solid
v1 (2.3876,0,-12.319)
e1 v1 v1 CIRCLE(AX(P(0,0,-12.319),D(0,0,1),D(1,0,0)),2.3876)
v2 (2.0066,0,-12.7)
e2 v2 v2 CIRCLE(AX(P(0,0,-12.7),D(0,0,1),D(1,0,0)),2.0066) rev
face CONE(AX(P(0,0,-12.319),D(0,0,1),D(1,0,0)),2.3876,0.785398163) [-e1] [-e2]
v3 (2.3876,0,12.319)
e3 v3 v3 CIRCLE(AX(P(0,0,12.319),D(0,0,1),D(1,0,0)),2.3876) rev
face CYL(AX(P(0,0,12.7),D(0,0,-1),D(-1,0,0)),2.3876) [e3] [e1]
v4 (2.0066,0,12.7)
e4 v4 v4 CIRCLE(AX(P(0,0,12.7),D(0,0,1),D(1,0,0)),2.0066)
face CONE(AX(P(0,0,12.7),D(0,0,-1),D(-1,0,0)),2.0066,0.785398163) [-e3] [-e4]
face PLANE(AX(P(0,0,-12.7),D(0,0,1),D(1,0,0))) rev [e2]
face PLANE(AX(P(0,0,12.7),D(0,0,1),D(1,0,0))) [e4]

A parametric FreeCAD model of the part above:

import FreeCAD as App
import Part
import Sketcher

V = App.Vector
Q = App.Units.Quantity


def edges_at(feature, points):
    """Names of the edges that pass closest to the given points."""
    edges = feature.Shape.Edges
    near = lambda p: min(range(len(edges)), key=lambda i: edges[i].distToShape(Part.Vertex(*p))[0])
    return sorted({f"Edge{near(p) + 1}" for p in points})

doc = App.newDocument("Part")
body = doc.addObject("PartDesign::Body", "Body")

# Sketch on XY plane
sketch1 = doc.addObject("Sketcher::SketchObject", "Sketch")
body.addObject(sketch1)
sketch1.AttachmentSupport = (doc.XY_Plane, [""])
sketch1.MapMode = "FlatFace"
sketch1.addGeometry(Part.Circle(V(0, 0, 0), V(0, 0, 1), 2.3876), False)
sketch1.addConstraint([
    Sketcher.Constraint("Coincident", 0, 3, -1, 1),
    Sketcher.Constraint("Diameter", 0, Q("0.188 in")),
])
pad1 = doc.addObject("PartDesign::Pad", "Pad")
body.addObject(pad1)
pad1.Profile = sketch1
pad1.Length = Q("1 in")
pad1.Midplane = True
doc.recompute()

chamfer = doc.addObject("PartDesign::Chamfer", "Chamfer")
body.addObject(chamfer)
chamfer.Base = (pad1, edges_at(pad1, [(-2.388, 0, -12.7), (-2.388, 0, 12.7)]))
chamfer.Size = Q("0.015 in")

doc.recompute()
